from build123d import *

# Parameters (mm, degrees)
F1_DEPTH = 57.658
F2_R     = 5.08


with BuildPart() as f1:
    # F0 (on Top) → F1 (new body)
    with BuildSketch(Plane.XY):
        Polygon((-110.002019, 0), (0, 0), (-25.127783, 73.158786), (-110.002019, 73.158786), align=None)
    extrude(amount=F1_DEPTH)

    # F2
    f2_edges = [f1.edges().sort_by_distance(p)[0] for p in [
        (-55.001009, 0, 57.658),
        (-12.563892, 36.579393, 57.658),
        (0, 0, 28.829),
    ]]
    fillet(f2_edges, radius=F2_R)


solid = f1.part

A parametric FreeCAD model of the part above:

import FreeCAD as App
import Part
import Sketcher

V = App.Vector
Q = App.Units.Quantity


def edges_at(feature, points):
    """Names of the edges that pass closest to the given points."""
    edges = feature.Shape.Edges
    near = lambda p: min(range(len(edges)), key=lambda i: edges[i].distToShape(Part.Vertex(*p))[0])
    return sorted({f"Edge{near(p) + 1}" for p in points})


def add_polygon(sketch, points):
    """Adds a closed chain of lines whose ends are joined by coincident constraints."""
    first, n = sketch.GeometryCount, len(points)
    for a, b in zip(points, points[1:] + points[:1]):
        sketch.addGeometry(Part.LineSegment(App.Vector(*a, 0), App.Vector(*b, 0)), False)
    for i in range(n):
        sketch.addConstraint(Sketcher.Constraint("Coincident", first + i, 2, first + (i + 1) % n, 1))

doc = App.newDocument("Part")
params = doc.addObject("Spreadsheet::Sheet", "Params")
for row, (alias, value) in enumerate([
    ("pad1_length", "2.27 in"),
    ("fillet_radius", "0.2 in"),
], start=1):
    params.set(f"A{row}", alias)
    params.set(f"B{row}", "=" + value)
    params.setAlias(f"B{row}", alias)

body = doc.addObject("PartDesign::Body", "Body")

sketch1 = doc.addObject("Sketcher::SketchObject", "Sketch")
body.addObject(sketch1)
sketch1.AttachmentSupport = (doc.XY_Plane, [""])
sketch1.MapMode = "FlatFace"
add_polygon(sketch1, [(-110, 0), (0, 0), (-25, 73), (-110, 73)])
sketch1.addConstraint([
    Sketcher.Constraint("Horizontal", 0),
    Sketcher.Constraint("Horizontal", 2),
    Sketcher.Constraint("Vertical", 3),
    Sketcher.Constraint("Coincident", 0, 2, -1, 1),
    Sketcher.Constraint("DistanceX", 0, 1, 0, 2, Q("110.002019 mm")),
    Sketcher.Constraint("Distance", 1, Q("77.35382 mm")),
    Sketcher.Constraint("DistanceX", 2, 2, 2, 1, Q("84.874236 mm")),
])
pad1 = doc.addObject("PartDesign::Pad", "Pad")
body.addObject(pad1)
pad1.Profile = sketch1
pad1.setExpression("Length", "Params.pad1_length")
doc.recompute()

fillet = doc.addObject("PartDesign::Fillet", "Fillet")
body.addObject(fillet)
fillet.Base = (pad1, edges_at(pad1, [(-55.001, 0, 57.658), (-12.564, 36.579, 57.658), (0, 0, 28.829)]))
fillet.setExpression("Radius", "Params.fillet_radius")

doc.recompute()
